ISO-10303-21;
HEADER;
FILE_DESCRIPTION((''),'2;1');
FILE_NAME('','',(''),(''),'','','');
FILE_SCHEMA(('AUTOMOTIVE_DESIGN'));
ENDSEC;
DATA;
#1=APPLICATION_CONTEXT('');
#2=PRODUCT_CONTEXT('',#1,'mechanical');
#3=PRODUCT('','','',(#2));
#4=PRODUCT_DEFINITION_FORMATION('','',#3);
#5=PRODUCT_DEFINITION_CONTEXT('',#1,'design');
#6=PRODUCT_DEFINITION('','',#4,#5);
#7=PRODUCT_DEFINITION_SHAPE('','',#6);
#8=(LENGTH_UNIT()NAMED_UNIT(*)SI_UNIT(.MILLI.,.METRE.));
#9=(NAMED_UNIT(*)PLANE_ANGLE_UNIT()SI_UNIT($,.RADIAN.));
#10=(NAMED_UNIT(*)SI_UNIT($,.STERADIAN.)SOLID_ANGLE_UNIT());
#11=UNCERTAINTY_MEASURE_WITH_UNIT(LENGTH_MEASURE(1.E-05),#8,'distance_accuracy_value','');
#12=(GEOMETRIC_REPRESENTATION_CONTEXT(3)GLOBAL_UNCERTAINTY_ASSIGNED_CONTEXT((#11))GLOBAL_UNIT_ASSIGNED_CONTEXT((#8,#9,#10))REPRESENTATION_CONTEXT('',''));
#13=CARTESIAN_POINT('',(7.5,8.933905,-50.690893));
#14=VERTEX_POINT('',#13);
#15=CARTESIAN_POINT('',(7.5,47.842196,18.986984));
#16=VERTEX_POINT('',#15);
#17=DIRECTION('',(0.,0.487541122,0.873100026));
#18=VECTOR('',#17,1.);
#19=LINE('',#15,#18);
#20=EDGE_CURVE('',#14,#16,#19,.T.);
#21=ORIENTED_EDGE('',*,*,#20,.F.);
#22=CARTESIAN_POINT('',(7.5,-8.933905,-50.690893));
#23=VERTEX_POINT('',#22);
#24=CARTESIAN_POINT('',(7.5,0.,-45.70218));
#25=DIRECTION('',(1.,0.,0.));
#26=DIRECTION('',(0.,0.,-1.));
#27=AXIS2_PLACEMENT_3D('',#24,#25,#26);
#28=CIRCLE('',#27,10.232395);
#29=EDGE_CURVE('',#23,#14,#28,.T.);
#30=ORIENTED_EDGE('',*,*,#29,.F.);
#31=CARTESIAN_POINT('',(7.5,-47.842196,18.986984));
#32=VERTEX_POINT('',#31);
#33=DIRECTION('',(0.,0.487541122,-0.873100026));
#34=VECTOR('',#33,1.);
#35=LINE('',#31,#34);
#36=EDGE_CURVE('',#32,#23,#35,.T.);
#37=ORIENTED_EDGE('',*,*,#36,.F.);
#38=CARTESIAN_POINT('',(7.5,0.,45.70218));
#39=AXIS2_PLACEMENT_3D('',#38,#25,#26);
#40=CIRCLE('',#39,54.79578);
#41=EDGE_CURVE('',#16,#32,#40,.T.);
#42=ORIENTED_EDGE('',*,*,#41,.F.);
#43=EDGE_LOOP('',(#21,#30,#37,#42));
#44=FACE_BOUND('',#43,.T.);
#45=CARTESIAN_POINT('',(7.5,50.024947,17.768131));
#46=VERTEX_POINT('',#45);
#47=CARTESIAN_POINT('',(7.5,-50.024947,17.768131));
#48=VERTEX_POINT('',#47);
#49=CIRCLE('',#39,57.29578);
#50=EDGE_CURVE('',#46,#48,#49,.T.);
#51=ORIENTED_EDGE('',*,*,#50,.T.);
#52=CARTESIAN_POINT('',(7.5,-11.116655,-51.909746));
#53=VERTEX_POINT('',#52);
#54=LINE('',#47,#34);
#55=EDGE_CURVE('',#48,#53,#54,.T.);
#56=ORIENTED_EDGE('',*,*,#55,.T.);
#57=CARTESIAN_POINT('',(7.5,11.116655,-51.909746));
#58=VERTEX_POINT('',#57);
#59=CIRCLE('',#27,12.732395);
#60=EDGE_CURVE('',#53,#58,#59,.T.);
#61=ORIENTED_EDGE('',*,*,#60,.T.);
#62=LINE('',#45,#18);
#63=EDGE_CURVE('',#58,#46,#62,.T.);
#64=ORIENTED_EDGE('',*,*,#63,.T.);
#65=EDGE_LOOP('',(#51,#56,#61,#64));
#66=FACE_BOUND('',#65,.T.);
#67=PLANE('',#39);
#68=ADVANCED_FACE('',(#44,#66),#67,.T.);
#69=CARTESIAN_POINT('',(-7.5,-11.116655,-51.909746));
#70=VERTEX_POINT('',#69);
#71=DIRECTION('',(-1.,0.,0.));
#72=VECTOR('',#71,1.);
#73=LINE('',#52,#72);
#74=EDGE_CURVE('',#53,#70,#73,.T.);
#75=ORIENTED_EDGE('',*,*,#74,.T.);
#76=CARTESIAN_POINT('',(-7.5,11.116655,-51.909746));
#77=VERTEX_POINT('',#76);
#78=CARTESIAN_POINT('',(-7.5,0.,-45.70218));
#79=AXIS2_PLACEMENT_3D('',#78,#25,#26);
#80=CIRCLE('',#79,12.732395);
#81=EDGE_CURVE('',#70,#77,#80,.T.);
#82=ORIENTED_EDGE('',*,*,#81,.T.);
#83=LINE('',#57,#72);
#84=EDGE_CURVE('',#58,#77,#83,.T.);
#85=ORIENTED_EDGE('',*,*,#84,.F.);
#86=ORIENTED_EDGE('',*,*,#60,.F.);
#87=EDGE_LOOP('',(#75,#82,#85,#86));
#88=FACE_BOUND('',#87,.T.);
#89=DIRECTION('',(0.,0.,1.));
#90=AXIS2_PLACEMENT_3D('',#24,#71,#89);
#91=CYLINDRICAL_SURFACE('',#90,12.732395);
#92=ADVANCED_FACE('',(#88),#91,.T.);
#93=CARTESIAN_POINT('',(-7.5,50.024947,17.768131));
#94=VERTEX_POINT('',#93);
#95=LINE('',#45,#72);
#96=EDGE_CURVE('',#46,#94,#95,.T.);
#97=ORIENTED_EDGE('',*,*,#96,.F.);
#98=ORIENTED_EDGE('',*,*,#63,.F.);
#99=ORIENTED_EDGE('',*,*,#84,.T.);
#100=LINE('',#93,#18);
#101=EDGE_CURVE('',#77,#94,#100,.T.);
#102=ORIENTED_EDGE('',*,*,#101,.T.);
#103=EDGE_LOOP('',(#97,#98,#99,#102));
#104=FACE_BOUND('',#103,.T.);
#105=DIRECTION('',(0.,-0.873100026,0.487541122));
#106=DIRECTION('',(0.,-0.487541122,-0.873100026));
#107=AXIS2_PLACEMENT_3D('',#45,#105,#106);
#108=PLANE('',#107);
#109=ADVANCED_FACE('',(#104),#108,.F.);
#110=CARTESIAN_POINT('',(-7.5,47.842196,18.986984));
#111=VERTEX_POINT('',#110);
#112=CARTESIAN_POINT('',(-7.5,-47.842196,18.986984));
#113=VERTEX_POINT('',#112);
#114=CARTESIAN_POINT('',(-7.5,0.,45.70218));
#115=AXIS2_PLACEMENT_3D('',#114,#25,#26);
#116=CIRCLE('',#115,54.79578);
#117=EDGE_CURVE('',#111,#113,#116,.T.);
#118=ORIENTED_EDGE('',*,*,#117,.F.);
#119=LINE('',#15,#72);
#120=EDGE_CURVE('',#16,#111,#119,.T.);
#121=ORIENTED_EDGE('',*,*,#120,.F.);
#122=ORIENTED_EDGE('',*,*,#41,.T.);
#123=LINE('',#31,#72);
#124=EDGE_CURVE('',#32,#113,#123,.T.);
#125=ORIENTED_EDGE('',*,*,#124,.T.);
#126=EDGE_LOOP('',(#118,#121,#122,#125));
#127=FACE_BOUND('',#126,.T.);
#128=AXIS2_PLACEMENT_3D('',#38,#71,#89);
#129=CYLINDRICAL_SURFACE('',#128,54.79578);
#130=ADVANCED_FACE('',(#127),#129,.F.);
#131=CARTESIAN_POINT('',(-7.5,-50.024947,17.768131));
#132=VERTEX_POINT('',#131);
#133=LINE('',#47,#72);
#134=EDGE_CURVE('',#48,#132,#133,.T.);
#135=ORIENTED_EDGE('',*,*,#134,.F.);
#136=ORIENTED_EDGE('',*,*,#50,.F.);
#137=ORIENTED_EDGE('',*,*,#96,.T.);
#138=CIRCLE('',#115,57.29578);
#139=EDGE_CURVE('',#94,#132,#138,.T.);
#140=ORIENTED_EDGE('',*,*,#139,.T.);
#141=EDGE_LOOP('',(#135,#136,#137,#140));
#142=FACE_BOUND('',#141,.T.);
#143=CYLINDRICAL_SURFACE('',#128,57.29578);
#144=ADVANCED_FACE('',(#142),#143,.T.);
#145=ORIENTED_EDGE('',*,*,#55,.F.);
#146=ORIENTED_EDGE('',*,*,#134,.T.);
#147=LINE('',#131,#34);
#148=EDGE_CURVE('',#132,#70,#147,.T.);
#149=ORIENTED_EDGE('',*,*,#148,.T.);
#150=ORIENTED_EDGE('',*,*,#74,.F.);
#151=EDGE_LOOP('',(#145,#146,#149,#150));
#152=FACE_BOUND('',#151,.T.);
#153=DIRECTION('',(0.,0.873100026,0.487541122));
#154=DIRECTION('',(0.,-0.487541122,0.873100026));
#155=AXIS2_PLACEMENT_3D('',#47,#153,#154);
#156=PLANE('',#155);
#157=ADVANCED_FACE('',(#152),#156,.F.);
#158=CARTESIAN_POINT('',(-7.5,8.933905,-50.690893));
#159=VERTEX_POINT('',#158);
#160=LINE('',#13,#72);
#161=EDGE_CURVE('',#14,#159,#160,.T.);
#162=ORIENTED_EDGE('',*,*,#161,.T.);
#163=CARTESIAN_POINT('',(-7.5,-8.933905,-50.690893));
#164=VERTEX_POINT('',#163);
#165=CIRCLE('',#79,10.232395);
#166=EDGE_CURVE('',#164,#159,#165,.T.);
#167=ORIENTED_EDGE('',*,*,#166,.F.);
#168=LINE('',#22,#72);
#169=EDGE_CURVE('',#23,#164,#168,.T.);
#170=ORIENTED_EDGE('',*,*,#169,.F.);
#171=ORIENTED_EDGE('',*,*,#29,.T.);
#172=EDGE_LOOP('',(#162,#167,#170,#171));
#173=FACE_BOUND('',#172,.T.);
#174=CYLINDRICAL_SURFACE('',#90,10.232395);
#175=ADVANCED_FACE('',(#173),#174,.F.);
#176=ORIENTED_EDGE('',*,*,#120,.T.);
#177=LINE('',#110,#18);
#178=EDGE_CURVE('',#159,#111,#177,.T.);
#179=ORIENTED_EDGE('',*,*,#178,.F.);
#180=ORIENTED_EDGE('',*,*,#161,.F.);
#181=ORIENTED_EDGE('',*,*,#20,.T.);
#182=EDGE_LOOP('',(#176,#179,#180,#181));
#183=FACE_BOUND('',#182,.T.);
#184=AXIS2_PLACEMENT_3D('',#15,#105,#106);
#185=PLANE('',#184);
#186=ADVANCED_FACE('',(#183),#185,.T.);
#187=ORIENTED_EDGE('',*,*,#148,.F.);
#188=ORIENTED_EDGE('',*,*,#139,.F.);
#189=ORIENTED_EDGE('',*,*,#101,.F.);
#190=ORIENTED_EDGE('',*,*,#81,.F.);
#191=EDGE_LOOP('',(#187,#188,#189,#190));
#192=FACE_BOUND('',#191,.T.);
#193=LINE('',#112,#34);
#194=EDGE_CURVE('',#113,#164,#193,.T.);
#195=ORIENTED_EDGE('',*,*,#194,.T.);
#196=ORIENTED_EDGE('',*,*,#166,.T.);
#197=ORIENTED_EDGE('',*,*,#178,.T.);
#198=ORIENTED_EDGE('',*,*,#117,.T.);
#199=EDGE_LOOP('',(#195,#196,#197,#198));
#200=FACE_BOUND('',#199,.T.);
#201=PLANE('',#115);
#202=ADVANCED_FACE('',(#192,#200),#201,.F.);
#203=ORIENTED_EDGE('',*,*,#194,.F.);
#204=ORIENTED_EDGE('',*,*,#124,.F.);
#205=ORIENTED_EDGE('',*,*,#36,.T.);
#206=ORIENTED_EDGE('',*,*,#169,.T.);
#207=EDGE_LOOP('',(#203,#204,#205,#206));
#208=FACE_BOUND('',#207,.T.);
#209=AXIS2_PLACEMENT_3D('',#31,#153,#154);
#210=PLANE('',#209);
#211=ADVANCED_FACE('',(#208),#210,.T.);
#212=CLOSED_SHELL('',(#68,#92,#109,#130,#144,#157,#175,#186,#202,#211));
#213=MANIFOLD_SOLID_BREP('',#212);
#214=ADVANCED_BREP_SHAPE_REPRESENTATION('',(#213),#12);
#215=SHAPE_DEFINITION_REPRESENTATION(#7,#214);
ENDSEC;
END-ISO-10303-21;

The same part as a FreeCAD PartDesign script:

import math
import FreeCAD as App
import Part
import Sketcher
Q = App.Units.Quantity

doc = App.newDocument("Part")
body = doc.addObject("PartDesign::Body", "Body")

# Sketch on YZ plane
sketch1 = body.newObject("Sketcher::SketchObject", "Sketch")
sketch1.AttachmentSupport = (doc.getObject("YZ_Plane"), [""])
sketch1.MapMode = "FlatFace"
sketch1.addGeometry(Part.LineSegment(App.Vector(11.116655, -51.909746, 0), App.Vector(50.024947, 17.768131, 0)), False)
sketch1.addGeometry(Part.ArcOfCircle(Part.Circle(App.Vector(0, 45.70218, 0), App.Vector(0, 0, 1), 57.29578), math.radians(-29.179094), math.radians(209.179094)), False)
sketch1.addGeometry(Part.LineSegment(App.Vector(-50.024947, 17.768131, 0), App.Vector(-11.116655, -51.909746, 0)), False)
sketch1.addGeometry(Part.ArcOfCircle(Part.Circle(App.Vector(0, -45.70218, 0), App.Vector(0, 0, 1), 12.732395), math.radians(-150.820906), math.radians(-29.179094)), False)
sketch1.addGeometry(Part.LineSegment(App.Vector(47.842196, 18.986984, 0), App.Vector(8.933905, -50.690893, 0)), False)
sketch1.addGeometry(Part.ArcOfCircle(Part.Circle(App.Vector(0, -45.70218, 0), App.Vector(0, 0, 1), 10.232395), math.radians(-150.820906), math.radians(-29.179094)), False)
sketch1.addGeometry(Part.LineSegment(App.Vector(-8.933905, -50.690893, 0), App.Vector(-47.842196, 18.986984, 0)), False)
sketch1.addGeometry(Part.ArcOfCircle(Part.Circle(App.Vector(0, 45.70218, 0), App.Vector(0, 0, 1), 54.79578), math.radians(-29.179094), math.radians(209.179094)), False)
sketch1.addConstraint(Sketcher.Constraint("Tangent", 0, 2, 1, 1))
sketch1.addConstraint(Sketcher.Constraint("Tangent", 1, 2, 2, 1))
sketch1.addConstraint(Sketcher.Constraint("Tangent", 2, 2, 3, 1))
sketch1.addConstraint(Sketcher.Constraint("Tangent", 3, 2, 0, 1))
sketch1.addConstraint(Sketcher.Constraint("Tangent", 4, 2, 5, 2))
sketch1.addConstraint(Sketcher.Constraint("Tangent", 5, 1, 6, 1))
sketch1.addConstraint(Sketcher.Constraint("Tangent", 6, 2, 7, 2))
sketch1.addConstraint(Sketcher.Constraint("Tangent", 7, 1, 4, 1))
sketch1.addConstraint(Sketcher.Constraint("Coincident", 5, 3, 3, 3))
sketch1.addConstraint(Sketcher.Constraint("Coincident", 7, 3, 1, 3))
sketch1.addConstraint(Sketcher.Constraint("Symmetric", 1, 3, 3, 3, -1, 1))
sketch1.addConstraint(Sketcher.Constraint("PointOnObject", 1, 3, -2))
sketch1.addConstraint(Sketcher.Constraint("Parallel", 0, 4))
sketch1.addConstraint(Sketcher.Constraint("Radius", 1, Q("57.29578 mm")))
sketch1.addConstraint(Sketcher.Constraint("Radius", 7, Q("54.79578 mm")))
sketch1.addConstraint(Sketcher.Constraint("Radius", 3, Q("12.732395 mm")))
sketch1.addConstraint(Sketcher.Constraint("DistanceX", 2, 2, 0, 2, Q("61.141601 mm")))
pad1 = body.newObject("PartDesign::Pad", "Pad")
pad1.Profile = sketch1
pad1.Length = 15
pad1.Midplane = True

doc.recompute()
